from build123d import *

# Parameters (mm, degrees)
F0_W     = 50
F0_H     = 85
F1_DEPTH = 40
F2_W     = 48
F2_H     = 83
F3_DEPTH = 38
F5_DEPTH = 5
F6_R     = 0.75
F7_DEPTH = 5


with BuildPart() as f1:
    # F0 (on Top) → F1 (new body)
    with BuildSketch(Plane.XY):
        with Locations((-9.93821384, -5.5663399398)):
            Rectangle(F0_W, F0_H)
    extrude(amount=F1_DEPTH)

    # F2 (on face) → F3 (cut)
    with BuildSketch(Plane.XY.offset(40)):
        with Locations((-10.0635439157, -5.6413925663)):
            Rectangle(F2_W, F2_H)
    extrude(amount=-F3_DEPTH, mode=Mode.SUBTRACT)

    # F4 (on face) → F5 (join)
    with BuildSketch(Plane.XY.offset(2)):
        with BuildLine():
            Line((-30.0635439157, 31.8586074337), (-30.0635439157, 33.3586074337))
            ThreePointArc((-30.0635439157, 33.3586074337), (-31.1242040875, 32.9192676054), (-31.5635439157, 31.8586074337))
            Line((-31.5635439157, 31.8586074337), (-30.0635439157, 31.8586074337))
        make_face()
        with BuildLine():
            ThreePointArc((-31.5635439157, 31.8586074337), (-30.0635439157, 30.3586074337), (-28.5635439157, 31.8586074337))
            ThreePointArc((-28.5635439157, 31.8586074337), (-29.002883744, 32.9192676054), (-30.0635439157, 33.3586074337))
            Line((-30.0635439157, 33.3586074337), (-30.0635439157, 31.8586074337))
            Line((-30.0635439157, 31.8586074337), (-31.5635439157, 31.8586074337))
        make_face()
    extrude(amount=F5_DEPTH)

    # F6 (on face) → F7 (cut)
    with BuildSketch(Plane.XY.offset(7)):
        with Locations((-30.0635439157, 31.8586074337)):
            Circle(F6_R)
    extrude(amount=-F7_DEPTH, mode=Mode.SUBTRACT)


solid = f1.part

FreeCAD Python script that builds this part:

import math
import FreeCAD as App
import Part
import Sketcher


def add_polygon(sketch, points):
    """Adds a closed chain of lines whose ends are joined by coincident constraints."""
    first, n = sketch.GeometryCount, len(points)
    for a, b in zip(points, points[1:] + points[:1]):
        sketch.addGeometry(Part.LineSegment(App.Vector(*a, 0), App.Vector(*b, 0)), False)
    for i in range(n):
        sketch.addConstraint(Sketcher.Constraint("Coincident", first + i, 2, first + (i + 1) % n, 1))

doc = App.newDocument("Part")
body = doc.addObject("PartDesign::Body", "Body")

# Sketch on XY plane
sketch1 = doc.addObject("Sketcher::SketchObject", "Sketch")
body.addObject(sketch1)
sketch1.AttachmentSupport = (doc.XY_Plane, [""])
sketch1.MapMode = "FlatFace"
add_polygon(sketch1, [(-35, 37), (-35, -48), (15, -48), (15, 37)])  # lines 0-3
sketch1.addConstraint([
    Sketcher.Constraint("Vertical", 0),
    Sketcher.Constraint("Horizontal", 1),
    Sketcher.Constraint("Vertical", 2),
    Sketcher.Constraint("Horizontal", 3),
    Sketcher.Constraint("DistanceX", 1, 1, 1, 2, 50.0),
    Sketcher.Constraint("DistanceY", 0, 2, 0, 1, 85.0),
    Sketcher.Constraint("DistanceY", 0, 2, -1, 1, 48.06634),
    Sketcher.Constraint("DistanceX", 0, 2, -1, 1, 34.938214),
])
pad1 = doc.addObject("PartDesign::Pad", "Pad")
body.addObject(pad1)
pad1.Profile = sketch1
pad1.Length = 40

# Sketch on XY plane
sketch2 = doc.addObject("Sketcher::SketchObject", "Sketch001")
body.addObject(sketch2)
sketch2.AttachmentSupport = (doc.XY_Plane, [""])
sketch2.MapMode = "FlatFace"
sketch2.AttachmentOffset = App.Placement(App.Vector(0, 0, 40), App.Rotation())
add_polygon(sketch2, [(-34, 36), (-34, -47), (14, -47), (14, 36)])  # lines 0-3
sketch2.addConstraint([
    Sketcher.Constraint("Vertical", 0),
    Sketcher.Constraint("Horizontal", 1),
    Sketcher.Constraint("Vertical", 2),
    Sketcher.Constraint("Horizontal", 3),
    Sketcher.Constraint("DistanceX", 1, 1, 1, 2, 48.0),
    Sketcher.Constraint("DistanceY", 0, 2, 0, 1, 83.0),
    Sketcher.Constraint("DistanceX", 0, 2, -1, 1, 34.063544),
    Sketcher.Constraint("DistanceY", 0, 2, -1, 1, 47.141393),
])
pocket1 = doc.addObject("PartDesign::Pocket", "Pocket")
body.addObject(pocket1)
pocket1.Profile = sketch2
pocket1.Length = 38

# Sketch on XY plane
sketch3 = doc.addObject("Sketcher::SketchObject", "Sketch002")
body.addObject(sketch3)
sketch3.AttachmentSupport = (doc.XY_Plane, [""])
sketch3.MapMode = "FlatFace"
sketch3.AttachmentOffset = App.Placement(App.Vector(0, 0, 2), App.Rotation())
sketch3.addGeometry([
    Part.ArcOfCircle(Part.Circle(App.Vector(-30.1, 31.9, 0), App.Vector(0, 0, 1), 1.5), math.radians(90), math.radians(180)),
    Part.ArcOfCircle(Part.Circle(App.Vector(-30.1, 31.9, 0), App.Vector(0, 0, 1), 1.5), math.radians(180), math.radians(360)),
    Part.ArcOfCircle(Part.Circle(App.Vector(-30.1, 31.9, 0), App.Vector(0, 0, 1), 1.5), math.radians(0), math.radians(90)),
], False)
sketch3.addConstraint([
    Sketcher.Constraint("Tangent", 0, 2, 1, 1),
    Sketcher.Constraint("Tangent", 1, 2, 2, 1),
    Sketcher.Constraint("Tangent", 2, 2, 0, 1),
    Sketcher.Constraint("Horizontal", 2, 3, 0, 2),
    Sketcher.Constraint("Horizontal", 0, 2, 1, 2),
    Sketcher.Constraint("Vertical", 1, 3, 2, 2),
    Sketcher.Constraint("Radius", 0, 1.5),
    Sketcher.Constraint("DistanceX", 0, 3, -1, 1, 30.063544),
    Sketcher.Constraint("DistanceY", -1, 1, 0, 3, 31.858607),
])
pad2 = doc.addObject("PartDesign::Pad", "Pad001")
body.addObject(pad2)
pad2.Profile = sketch3
pad2.Length = 5

# Sketch on XY plane
sketch4 = doc.addObject("Sketcher::SketchObject", "Sketch003")
body.addObject(sketch4)
sketch4.AttachmentSupport = (doc.XY_Plane, [""])
sketch4.MapMode = "FlatFace"
sketch4.AttachmentOffset = App.Placement(App.Vector(0, 0, 7), App.Rotation())
sketch4.addGeometry(Part.Circle(App.Vector(-30.1, 31.9, 0), App.Vector(0, 0, 1), 0.8), False)
sketch4.addConstraint([
    Sketcher.Constraint("Diameter", 0, 1.5),
    Sketcher.Constraint("DistanceX", 0, 3, -1, 1, 30.063544),
    Sketcher.Constraint("DistanceY", -1, 1, 0, 3, 31.858607),
])
pocket2 = doc.addObject("PartDesign::Pocket", "Pocket001")
body.addObject(pocket2)
pocket2.Profile = sketch4
pocket2.Length = 5

doc.recompute()
